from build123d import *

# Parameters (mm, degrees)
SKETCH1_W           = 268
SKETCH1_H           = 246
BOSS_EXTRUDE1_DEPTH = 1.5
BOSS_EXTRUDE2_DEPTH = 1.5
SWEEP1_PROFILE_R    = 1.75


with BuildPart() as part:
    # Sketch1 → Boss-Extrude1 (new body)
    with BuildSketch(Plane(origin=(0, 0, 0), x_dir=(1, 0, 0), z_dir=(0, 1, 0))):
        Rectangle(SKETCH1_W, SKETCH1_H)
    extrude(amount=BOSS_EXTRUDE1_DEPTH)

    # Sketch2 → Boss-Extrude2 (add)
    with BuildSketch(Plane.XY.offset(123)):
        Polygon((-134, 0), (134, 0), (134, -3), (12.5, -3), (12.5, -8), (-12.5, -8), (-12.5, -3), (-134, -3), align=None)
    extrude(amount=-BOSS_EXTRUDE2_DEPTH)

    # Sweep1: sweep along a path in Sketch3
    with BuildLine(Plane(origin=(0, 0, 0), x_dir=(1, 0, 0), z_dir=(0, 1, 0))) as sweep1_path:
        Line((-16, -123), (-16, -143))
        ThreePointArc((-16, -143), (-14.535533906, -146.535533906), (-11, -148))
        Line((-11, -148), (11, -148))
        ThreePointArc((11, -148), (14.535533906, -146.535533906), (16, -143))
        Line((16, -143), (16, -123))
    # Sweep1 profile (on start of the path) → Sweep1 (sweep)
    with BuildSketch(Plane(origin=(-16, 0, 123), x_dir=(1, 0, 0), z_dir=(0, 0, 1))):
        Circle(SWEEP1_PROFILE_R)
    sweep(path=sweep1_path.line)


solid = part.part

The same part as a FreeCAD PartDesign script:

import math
import FreeCAD as App
import Part
import Sketcher
from FreeCAD import Vector

doc = App.newDocument("Part")
body = doc.addObject("PartDesign::Body", "Body")

sketch1 = body.newObject("Sketcher::SketchObject", "Sketch")
sketch1.AttachmentSupport = (doc.getObject("XZ_Plane"), [""])
sketch1.MapMode = "FlatFace"
sketch1.addGeometry([
    Part.LineSegment(Vector(-134, -123, 0), Vector(-134, 123, 0)),
    Part.LineSegment(Vector(-134, 123, 0), Vector(134, 123, 0)),
    Part.LineSegment(Vector(134, 123, 0), Vector(134, -123, 0)),
    Part.LineSegment(Vector(134, -123, 0), Vector(-134, -123, 0)),
], False)
sketch1.addConstraint([
    Sketcher.Constraint("Coincident", 0, 2, 1, 1),
    Sketcher.Constraint("Coincident", 1, 2, 2, 1),
    Sketcher.Constraint("Coincident", 2, 2, 3, 1),
    Sketcher.Constraint("Coincident", 3, 2, 0, 1),
    Sketcher.Constraint("Vertical", 0),
    Sketcher.Constraint("Horizontal", 1),
    Sketcher.Constraint("Vertical", 2),
    Sketcher.Constraint("Horizontal", 3),
    Sketcher.Constraint("Symmetric", 0, 2, 2, 2, -1, 1),
    Sketcher.Constraint("DistanceX", 1, 1, 1, 2, 268.0),
    Sketcher.Constraint("DistanceY", 0, 1, 0, 2, 246.0),
])
pad1 = body.newObject("PartDesign::Pad", "Pad")
pad1.Profile = sketch1
pad1.Length = 1.5
pad1.Reversed = True

sketch2 = body.newObject("Sketcher::SketchObject", "Sketch001")
sketch2.AttachmentSupport = (doc.getObject("XY_Plane"), [""])
sketch2.MapMode = "FlatFace"
sketch2.AttachmentOffset = App.Placement(Vector(0, 0, 123), App.Rotation())
sketch2.addGeometry([
    Part.LineSegment(Vector(134, 0, 0), Vector(-134, 0, 0)),
    Part.LineSegment(Vector(-134, 0, 0), Vector(-134, -3, 0)),
    Part.LineSegment(Vector(-134, -3, 0), Vector(-12.5, -3, 0)),
    Part.LineSegment(Vector(-12.5, -3, 0), Vector(-12.5, -8, 0)),
    Part.LineSegment(Vector(-12.5, -8, 0), Vector(12.5, -8, 0)),
    Part.LineSegment(Vector(12.5, -8, 0), Vector(12.5, -3, 0)),
    Part.LineSegment(Vector(12.5, -3, 0), Vector(134, -3, 0)),
    Part.LineSegment(Vector(134, -3, 0), Vector(134, 0, 0)),
], False)
sketch2.addConstraint([
    Sketcher.Constraint("Coincident", 0, 2, 1, 1),
    Sketcher.Constraint("Coincident", 1, 2, 2, 1),
    Sketcher.Constraint("Coincident", 2, 2, 3, 1),
    Sketcher.Constraint("Coincident", 3, 2, 4, 1),
    Sketcher.Constraint("Coincident", 4, 2, 5, 1),
    Sketcher.Constraint("Coincident", 5, 2, 6, 1),
    Sketcher.Constraint("Coincident", 6, 2, 7, 1),
    Sketcher.Constraint("Coincident", 7, 2, 0, 1),
    Sketcher.Constraint("Horizontal", 0),
    Sketcher.Constraint("Vertical", 1),
    Sketcher.Constraint("Horizontal", 2),
    Sketcher.Constraint("Vertical", 3),
    Sketcher.Constraint("Horizontal", 4),
    Sketcher.Constraint("Vertical", 5),
    Sketcher.Constraint("Horizontal", 6),
    Sketcher.Constraint("Vertical", 7),
    Sketcher.Constraint("Symmetric", 0, 2, 7, 2, -1, 1),
    Sketcher.Constraint("Symmetric", 2, 2, 5, 2, -2),
    Sketcher.Constraint("DistanceX", 0, 2, 0, 1, 268.0),
    Sketcher.Constraint("DistanceX", 4, 1, 4, 2, 25.0),
    Sketcher.Constraint("DistanceY", 1, 2, 1, 1, 3.0),
    Sketcher.Constraint("DistanceY", 3, 2, 3, 1, 5.0),
])
pad2 = body.newObject("PartDesign::Pad", "Pad001")
pad2.Profile = sketch2
pad2.Length = 1.5
pad2.Reversed = True

sketch3 = body.newObject("Sketcher::SketchObject", "Sketch002")
sketch3.AttachmentSupport = (doc.getObject("XY_Plane"), [""])
sketch3.MapMode = "FlatFace"
sketch3.AttachmentOffset = App.Placement(Vector(0, 0, 123), App.Rotation())
sketch3.addGeometry(Part.Circle(Vector(-16, 0, 0), Vector(0, 0, 1), 1.8), False)
sketch3.addConstraint([
    Sketcher.Constraint("PointOnObject", 0, 3, -1),
    Sketcher.Constraint("Diameter", 0, 3.5),
    Sketcher.Constraint("DistanceX", 0, 3, -1, 1, 16.0),
])

sketch4 = body.newObject("Sketcher::SketchObject", "Sketch003")
sketch4.AttachmentSupport = (doc.getObject("XZ_Plane"), [""])
sketch4.MapMode = "FlatFace"
sketch4.addGeometry([
    Part.LineSegment(Vector(-16, 123, 0), Vector(-16, 143, 0)),
    Part.ArcOfCircle(Part.Circle(Vector(-11, 143, 0), Vector(0, 0, 1), 5), math.radians(90), math.radians(180)),
    Part.LineSegment(Vector(-11, 148, 0), Vector(11, 148, 0)),
    Part.ArcOfCircle(Part.Circle(Vector(11, 143, 0), Vector(0, 0, 1), 5), math.radians(0), math.radians(90)),
    Part.LineSegment(Vector(16, 143, 0), Vector(16, 123, 0)),
], False)
sketch4.addConstraint([
    Sketcher.Constraint("Tangent", 0, 2, 1, 2),
    Sketcher.Constraint("Tangent", 1, 1, 2, 1),
    Sketcher.Constraint("Tangent", 2, 2, 3, 2),
    Sketcher.Constraint("Tangent", 3, 1, 4, 1),
    Sketcher.Constraint("Vertical", 0),
    Sketcher.Constraint("Horizontal", 2),
    Sketcher.Constraint("Vertical", 4),
    Sketcher.Constraint("Equal", 1, 3),
    Sketcher.Constraint("Symmetric", 0, 1, 4, 2, -2),
    Sketcher.Constraint("Radius", 1, 5.0),
    Sketcher.Constraint("DistanceX", 2, 1, 2, 2, 22.0),
    Sketcher.Constraint("DistanceY", 0, 1, 0, 2, 20.0),
    Sketcher.Constraint("DistanceY", -1, 1, 1, 3, 143.0),
])
doc.recompute()

additivepipe = body.newObject("PartDesign::AdditivePipe", "AdditivePipe")
additivepipe.Profile = sketch3
additivepipe.Spine = (sketch4, ["Edge1", "Edge2", "Edge3", "Edge4", "Edge5"])

doc.recompute()
